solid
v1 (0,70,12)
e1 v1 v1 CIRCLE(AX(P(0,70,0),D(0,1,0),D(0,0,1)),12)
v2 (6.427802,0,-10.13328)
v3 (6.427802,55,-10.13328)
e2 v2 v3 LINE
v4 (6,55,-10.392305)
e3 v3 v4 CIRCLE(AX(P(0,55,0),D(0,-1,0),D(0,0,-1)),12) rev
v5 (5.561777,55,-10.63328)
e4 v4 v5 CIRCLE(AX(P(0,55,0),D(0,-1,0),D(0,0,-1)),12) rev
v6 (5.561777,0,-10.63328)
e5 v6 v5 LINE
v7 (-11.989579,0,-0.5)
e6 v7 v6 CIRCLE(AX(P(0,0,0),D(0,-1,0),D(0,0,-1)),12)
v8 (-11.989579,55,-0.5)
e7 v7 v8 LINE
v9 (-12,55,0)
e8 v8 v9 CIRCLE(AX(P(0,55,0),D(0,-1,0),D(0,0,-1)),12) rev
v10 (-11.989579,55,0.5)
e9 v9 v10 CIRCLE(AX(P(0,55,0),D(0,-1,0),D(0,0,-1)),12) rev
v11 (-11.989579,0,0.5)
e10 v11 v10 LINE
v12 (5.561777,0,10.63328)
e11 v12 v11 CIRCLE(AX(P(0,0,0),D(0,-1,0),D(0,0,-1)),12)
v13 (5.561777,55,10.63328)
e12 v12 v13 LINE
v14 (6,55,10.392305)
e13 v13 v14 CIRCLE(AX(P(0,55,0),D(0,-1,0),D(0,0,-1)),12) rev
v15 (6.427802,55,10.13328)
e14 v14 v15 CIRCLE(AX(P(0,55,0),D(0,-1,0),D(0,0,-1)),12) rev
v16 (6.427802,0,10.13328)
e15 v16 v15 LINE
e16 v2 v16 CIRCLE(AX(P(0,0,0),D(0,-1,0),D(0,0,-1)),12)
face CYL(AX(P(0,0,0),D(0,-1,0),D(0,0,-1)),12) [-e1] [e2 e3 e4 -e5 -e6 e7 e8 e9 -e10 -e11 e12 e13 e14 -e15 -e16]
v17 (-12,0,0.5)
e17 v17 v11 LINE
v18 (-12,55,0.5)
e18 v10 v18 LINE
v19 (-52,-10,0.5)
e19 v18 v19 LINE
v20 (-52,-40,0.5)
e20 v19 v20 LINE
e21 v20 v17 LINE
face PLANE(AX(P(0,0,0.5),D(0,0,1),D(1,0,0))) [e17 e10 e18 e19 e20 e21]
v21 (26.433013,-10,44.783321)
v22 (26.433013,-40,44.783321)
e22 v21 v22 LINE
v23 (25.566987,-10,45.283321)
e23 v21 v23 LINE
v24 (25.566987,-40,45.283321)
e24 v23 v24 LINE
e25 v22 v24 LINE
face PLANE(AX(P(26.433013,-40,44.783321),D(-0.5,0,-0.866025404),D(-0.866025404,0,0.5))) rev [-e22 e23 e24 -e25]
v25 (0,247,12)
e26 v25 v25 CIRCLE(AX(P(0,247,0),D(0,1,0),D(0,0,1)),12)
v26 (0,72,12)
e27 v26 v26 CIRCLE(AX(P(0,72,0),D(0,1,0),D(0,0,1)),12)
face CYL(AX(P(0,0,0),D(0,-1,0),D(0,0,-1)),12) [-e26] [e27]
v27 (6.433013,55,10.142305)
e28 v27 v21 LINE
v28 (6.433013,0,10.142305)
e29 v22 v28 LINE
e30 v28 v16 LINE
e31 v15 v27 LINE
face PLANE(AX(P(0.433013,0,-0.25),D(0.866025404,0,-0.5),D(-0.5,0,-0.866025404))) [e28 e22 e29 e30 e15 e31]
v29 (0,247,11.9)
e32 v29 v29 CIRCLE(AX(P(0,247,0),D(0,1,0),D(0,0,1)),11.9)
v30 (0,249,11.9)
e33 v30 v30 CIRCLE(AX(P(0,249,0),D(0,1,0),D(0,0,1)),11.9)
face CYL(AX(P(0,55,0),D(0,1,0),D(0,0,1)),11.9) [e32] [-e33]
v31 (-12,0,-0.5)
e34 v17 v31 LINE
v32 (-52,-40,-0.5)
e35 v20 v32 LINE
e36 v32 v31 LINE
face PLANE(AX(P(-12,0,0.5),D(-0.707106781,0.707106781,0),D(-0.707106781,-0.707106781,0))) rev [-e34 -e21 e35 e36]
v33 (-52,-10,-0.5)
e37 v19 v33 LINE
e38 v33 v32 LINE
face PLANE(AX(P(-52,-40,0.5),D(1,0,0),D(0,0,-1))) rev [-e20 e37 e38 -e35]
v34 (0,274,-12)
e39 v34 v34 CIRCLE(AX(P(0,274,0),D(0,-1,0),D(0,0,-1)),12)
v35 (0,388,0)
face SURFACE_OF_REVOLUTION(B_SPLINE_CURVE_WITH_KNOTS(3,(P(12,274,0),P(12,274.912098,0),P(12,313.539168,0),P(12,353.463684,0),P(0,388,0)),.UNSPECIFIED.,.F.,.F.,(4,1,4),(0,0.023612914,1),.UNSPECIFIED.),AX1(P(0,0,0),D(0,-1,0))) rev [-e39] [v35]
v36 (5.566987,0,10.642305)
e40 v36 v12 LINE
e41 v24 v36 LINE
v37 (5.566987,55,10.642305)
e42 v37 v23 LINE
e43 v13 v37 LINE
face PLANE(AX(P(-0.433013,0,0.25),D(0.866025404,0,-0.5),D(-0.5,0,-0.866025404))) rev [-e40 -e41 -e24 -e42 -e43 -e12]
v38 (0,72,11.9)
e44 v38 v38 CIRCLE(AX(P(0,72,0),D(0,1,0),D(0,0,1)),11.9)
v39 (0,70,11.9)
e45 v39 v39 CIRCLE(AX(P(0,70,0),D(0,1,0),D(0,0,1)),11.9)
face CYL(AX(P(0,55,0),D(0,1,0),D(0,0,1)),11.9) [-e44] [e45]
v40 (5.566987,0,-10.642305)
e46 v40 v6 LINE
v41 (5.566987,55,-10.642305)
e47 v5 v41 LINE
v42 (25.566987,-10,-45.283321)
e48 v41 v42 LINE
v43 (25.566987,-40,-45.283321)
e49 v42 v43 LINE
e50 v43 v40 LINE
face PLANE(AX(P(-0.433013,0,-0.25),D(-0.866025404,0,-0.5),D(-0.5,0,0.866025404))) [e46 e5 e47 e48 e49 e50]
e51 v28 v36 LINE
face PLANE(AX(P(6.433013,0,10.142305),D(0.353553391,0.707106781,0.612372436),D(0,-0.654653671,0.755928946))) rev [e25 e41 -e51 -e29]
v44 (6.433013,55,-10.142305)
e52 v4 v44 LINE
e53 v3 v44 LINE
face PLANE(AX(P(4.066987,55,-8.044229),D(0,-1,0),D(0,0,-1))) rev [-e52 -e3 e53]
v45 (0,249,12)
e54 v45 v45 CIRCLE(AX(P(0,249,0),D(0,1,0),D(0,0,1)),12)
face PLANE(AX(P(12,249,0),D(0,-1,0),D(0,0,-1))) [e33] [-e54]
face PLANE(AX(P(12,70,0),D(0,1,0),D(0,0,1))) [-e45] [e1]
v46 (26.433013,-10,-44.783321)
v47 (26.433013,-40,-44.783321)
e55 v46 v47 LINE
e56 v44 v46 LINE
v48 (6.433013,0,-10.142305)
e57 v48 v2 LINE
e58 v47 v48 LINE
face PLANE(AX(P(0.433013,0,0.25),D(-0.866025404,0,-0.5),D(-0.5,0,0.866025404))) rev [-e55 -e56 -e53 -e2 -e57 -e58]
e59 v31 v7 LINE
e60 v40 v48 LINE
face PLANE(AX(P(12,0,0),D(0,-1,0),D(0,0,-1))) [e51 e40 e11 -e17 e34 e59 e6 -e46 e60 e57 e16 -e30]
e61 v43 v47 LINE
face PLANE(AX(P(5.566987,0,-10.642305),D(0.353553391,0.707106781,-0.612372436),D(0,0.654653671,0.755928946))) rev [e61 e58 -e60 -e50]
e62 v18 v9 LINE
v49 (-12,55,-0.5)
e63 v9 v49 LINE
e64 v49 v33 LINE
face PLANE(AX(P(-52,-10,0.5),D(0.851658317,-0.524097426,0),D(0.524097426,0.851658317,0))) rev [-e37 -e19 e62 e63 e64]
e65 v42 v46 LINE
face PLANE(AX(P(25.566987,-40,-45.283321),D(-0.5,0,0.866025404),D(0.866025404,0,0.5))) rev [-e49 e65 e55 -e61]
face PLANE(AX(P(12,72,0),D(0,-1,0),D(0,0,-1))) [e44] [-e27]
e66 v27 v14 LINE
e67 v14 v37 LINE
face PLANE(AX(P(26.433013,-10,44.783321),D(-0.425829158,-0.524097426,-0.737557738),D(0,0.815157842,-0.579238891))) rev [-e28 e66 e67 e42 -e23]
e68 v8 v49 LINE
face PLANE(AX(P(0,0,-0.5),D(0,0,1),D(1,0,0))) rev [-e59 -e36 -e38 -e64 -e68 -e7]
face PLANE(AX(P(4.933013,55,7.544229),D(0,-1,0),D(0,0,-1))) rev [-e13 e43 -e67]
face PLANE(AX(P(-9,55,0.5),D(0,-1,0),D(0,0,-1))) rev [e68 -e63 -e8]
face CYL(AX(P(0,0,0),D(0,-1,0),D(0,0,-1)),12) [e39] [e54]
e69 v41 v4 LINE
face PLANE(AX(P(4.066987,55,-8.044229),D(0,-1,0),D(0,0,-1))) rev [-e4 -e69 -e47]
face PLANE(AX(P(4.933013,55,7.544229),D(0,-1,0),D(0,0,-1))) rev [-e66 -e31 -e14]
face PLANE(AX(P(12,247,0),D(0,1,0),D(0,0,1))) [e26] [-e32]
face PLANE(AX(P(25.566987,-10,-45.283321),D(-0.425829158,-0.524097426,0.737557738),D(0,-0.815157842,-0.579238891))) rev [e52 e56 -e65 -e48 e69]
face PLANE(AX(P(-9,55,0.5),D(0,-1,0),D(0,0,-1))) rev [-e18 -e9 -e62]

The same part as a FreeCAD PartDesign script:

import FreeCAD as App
import Part
import Sketcher
Q = App.Units.Quantity

doc = App.newDocument("Part")
body = doc.addObject("PartDesign::Body", "Body")

sketch1 = body.newObject("Sketcher::SketchObject", "Sketch")
sketch1.AttachmentSupport = (doc.getObject("XY_Plane"), [""])
sketch1.MapMode = "FlatFace"
sketch1.addGeometry([
    Part.LineSegment(App.Vector(0, 388, 0), App.Vector(0, 0, 0)),
    Part.LineSegment(App.Vector(0, 0, 0), App.Vector(12, 0, 0)),
    Part.LineSegment(App.Vector(12, 0, 0), App.Vector(12, 274, 0)),
    Part.BSplineCurve([App.Vector(0, 388, 0), App.Vector(12, 353.463684, 0), App.Vector(12, 313.539168, 0), App.Vector(12, 274.912098, 0), App.Vector(12, 274, 0)], [4, 1, 4], [0, 0.976387086, 1], False, 3, [1, 1, 1, 1, 1], False),
], False)
sketch1.addConstraint([
    Sketcher.Constraint("Block", 3),
    Sketcher.Constraint("Coincident", 0, 2, 1, 1),
    Sketcher.Constraint("Coincident", 1, 2, 2, 1),
    Sketcher.Constraint("Coincident", 2, 2, 3, 2),
    Sketcher.Constraint("Coincident", 3, 1, 0, 1),
    Sketcher.Constraint("Vertical", 0),
    Sketcher.Constraint("Horizontal", 1),
    Sketcher.Constraint("Vertical", 2),
    Sketcher.Constraint("PointOnObject", 1, 2, -1),
])
revolution = body.newObject("PartDesign::Revolution", "Revolution")
revolution.Profile = sketch1
revolution.ReferenceAxis = (sketch1, ["V_Axis"])
revolution.Angle = 360

sketch2 = body.newObject("Sketcher::SketchObject", "Sketch001")
sketch2.AttachmentSupport = (doc.getObject("XY_Plane"), [""])
sketch2.MapMode = "FlatFace"
sketch2.addGeometry([
    Part.LineSegment(App.Vector(-52, -40, 0), App.Vector(-12, 0, 0)),
    Part.LineSegment(App.Vector(-12, 0, 0), App.Vector(-9, 0, 0)),
    Part.LineSegment(App.Vector(-9, 0, 0), App.Vector(-9, 55, 0)),
    Part.LineSegment(App.Vector(-9, 55, 0), App.Vector(-12, 55, 0)),
    Part.LineSegment(App.Vector(-12, 55, 0), App.Vector(-52, -10, 0)),
    Part.LineSegment(App.Vector(-52, -10, 0), App.Vector(-52, -40, 0)),
], False)
sketch2.addConstraint([
    Sketcher.Constraint("Coincident", 0, 2, 1, 1),
    Sketcher.Constraint("Coincident", 1, 2, 2, 1),
    Sketcher.Constraint("Coincident", 2, 2, 3, 1),
    Sketcher.Constraint("Coincident", 3, 2, 4, 1),
    Sketcher.Constraint("Coincident", 4, 2, 5, 1),
    Sketcher.Constraint("Coincident", 5, 2, 0, 1),
    Sketcher.Constraint("Horizontal", 1),
    Sketcher.Constraint("Vertical", 2),
    Sketcher.Constraint("Horizontal", 3),
    Sketcher.Constraint("Vertical", 5),
    Sketcher.Constraint("PointOnObject", 0, 2, -1),
    Sketcher.Constraint("Vertical", 0, 2, 3, 2),
    Sketcher.Constraint("DistanceX", 1, 1, 1, 2, Q("3 mm")),
    Sketcher.Constraint("DistanceY", 2, 1, 2, 2, Q("55 mm")),
    Sketcher.Constraint("DistanceY", 5, 2, 5, 1, Q("30 mm")),
    Sketcher.Constraint("Angle", 0, Q("45 deg")),
    Sketcher.Constraint("DistanceX", 0, 2, -1, 1, Q("12 mm")),
    Sketcher.Constraint("DistanceX", 4, 2, -1, 1, Q("52 mm")),
])
pad1 = body.newObject("PartDesign::Pad", "Pad")
pad1.Profile = sketch2
pad1.Length = 1
pad1.Midplane = True
doc.recompute()

polarpattern = body.newObject("PartDesign::PolarPattern", "PolarPattern")
polarpattern.Originals = [pad1]
polarpattern.Axis = (doc.getObject("Y_Axis"), [""])
polarpattern.Angle = 360
polarpattern.Occurrences = 3
body.Tip = polarpattern

sketch3 = body.newObject("Sketcher::SketchObject", "Sketch002")
sketch3.AttachmentSupport = (doc.getObject("XY_Plane"), [""])
sketch3.MapMode = "FlatFace"
sketch3.addGeometry([
    Part.LineSegment(App.Vector(11.9, 72, 0), App.Vector(11.9, 70, 0)),
    Part.LineSegment(App.Vector(11.9, 70, 0), App.Vector(12, 70, 0)),
    Part.LineSegment(App.Vector(12, 70, 0), App.Vector(12, 72, 0)),
    Part.LineSegment(App.Vector(12, 72, 0), App.Vector(11.9, 72, 0)),
    Part.LineSegment(App.Vector(11.9, 249, 0), App.Vector(11.9, 247, 0)),
    Part.LineSegment(App.Vector(11.9, 247, 0), App.Vector(12, 247, 0)),
    Part.LineSegment(App.Vector(12, 247, 0), App.Vector(12, 249, 0)),
    Part.LineSegment(App.Vector(12, 249, 0), App.Vector(11.9, 249, 0)),
], False)
sketch3.addConstraint([
    Sketcher.Constraint("Coincident", 0, 2, 1, 1),
    Sketcher.Constraint("Coincident", 1, 2, 2, 1),
    Sketcher.Constraint("Coincident", 2, 2, 3, 1),
    Sketcher.Constraint("Coincident", 3, 2, 0, 1),
    Sketcher.Constraint("Coincident", 4, 2, 5, 1),
    Sketcher.Constraint("Coincident", 5, 2, 6, 1),
    Sketcher.Constraint("Coincident", 6, 2, 7, 1),
    Sketcher.Constraint("Coincident", 7, 2, 4, 1),
    Sketcher.Constraint("Vertical", 0),
    Sketcher.Constraint("Horizontal", 1),
    Sketcher.Constraint("Vertical", 2),
    Sketcher.Constraint("Horizontal", 3),
    Sketcher.Constraint("Vertical", 4),
    Sketcher.Constraint("Horizontal", 5),
    Sketcher.Constraint("Vertical", 6),
    Sketcher.Constraint("Horizontal", 7),
    Sketcher.Constraint("Vertical", 3, 2, 4, 2),
    Sketcher.Constraint("Vertical", 2, 2, 5, 2),
    Sketcher.Constraint("Equal", 2, 4),
    Sketcher.Constraint("DistanceY", 0, 2, 0, 1, Q("2 mm")),
    Sketcher.Constraint("DistanceX", 1, 1, 1, 2, Q("0.1 mm")),
    Sketcher.Constraint("DistanceY", -1, 1, 0, 2, Q("70 mm")),
    Sketcher.Constraint("DistanceX", -1, 1, 1, 2, Q("12 mm")),
    Sketcher.Constraint("DistanceY", -1, 1, 4, 2, Q("247 mm")),
])
groove = body.newObject("PartDesign::Groove", "Groove")
groove.Profile = sketch3
groove.ReferenceAxis = (sketch3, ["V_Axis"])
groove.Angle = 360

doc.recompute()
